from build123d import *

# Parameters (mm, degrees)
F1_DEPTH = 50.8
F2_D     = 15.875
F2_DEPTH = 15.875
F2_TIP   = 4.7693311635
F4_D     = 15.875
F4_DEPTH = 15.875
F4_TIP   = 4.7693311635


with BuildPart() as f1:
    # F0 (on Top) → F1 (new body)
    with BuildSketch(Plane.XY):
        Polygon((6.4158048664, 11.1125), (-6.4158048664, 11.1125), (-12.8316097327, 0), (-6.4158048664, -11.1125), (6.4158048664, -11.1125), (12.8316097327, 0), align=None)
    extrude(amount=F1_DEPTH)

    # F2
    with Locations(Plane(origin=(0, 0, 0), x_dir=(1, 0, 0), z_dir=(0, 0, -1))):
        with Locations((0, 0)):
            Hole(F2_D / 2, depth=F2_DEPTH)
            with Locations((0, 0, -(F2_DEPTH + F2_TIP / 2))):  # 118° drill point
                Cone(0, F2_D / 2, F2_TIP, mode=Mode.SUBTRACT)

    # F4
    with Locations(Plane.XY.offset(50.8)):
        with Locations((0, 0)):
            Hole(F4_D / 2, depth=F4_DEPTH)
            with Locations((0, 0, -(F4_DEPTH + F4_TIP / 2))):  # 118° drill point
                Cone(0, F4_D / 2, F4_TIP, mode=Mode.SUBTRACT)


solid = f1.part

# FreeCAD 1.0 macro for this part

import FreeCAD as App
import Part
import Sketcher
from FreeCAD import Vector
Q = App.Units.Quantity


def add_polygon(sketch, points):
    """Adds a closed chain of lines whose ends are joined by coincident constraints."""
    first, n = sketch.GeometryCount, len(points)
    for a, b in zip(points, points[1:] + points[:1]):
        sketch.addGeometry(Part.LineSegment(App.Vector(*a, 0), App.Vector(*b, 0)), False)
    for i in range(n):
        sketch.addConstraint(Sketcher.Constraint("Coincident", first + i, 2, first + (i + 1) % n, 1))

doc = App.newDocument("Part")
body = doc.addObject("PartDesign::Body", "Body")

sketch1 = body.newObject("Sketcher::SketchObject", "Sketch")
sketch1.AttachmentSupport = (doc.getObject("XY_Plane"), [""])
sketch1.MapMode = "FlatFace"
add_polygon(sketch1, [(6.415805, 11.1125), (-6.415805, 11.1125), (-12.83161, 0), (-6.415805, -11.1125), (6.415805, -11.1125), (12.83161, 0)])
sketch1.addConstraint(Sketcher.Constraint("Horizontal", 0))
sketch1.addConstraint(Sketcher.Constraint("Horizontal", 3))
sketch1.addConstraint(Sketcher.Constraint("Symmetric", 0, 2, 3, 2, -1, 1))
sketch1.addConstraint(Sketcher.Constraint("Symmetric", 1, 2, 4, 2, -1, 1))
sketch1.addConstraint(Sketcher.Constraint("PointOnObject", 1, 2, -1))
sketch1.addConstraint(Sketcher.Constraint("Parallel", 2, 5))
sketch1.addConstraint(Sketcher.Constraint("Vertical", 0, 2, 2, 2))
sketch1.addConstraint(Sketcher.Constraint("Angle", 1, Q("-120 deg")))
sketch1.addConstraint(Sketcher.Constraint("DistanceY", -1, 1, 0, 2, Q("0.4375 in")))
sketch1.addConstraint(Sketcher.Constraint("DistanceX", 0, 2, 0, 1, 12.83161))
pad1 = body.newObject("PartDesign::Pad", "Pad")
pad1.Profile = sketch1
pad1.Length = Q("2 in")

sketch2 = body.newObject("Sketcher::SketchObject", "Sketch001")
sketch2.AttachmentSupport = (doc.getObject("XY_Plane"), [""])
sketch2.MapMode = "FlatFace"
sketch2.addGeometry(Part.Circle(Vector(0, 0, 0), Vector(0, 0, 1), 7.9375), False)
sketch2.addConstraint(Sketcher.Constraint("Coincident", 0, 3, -1, 1))
sketch2.addConstraint(Sketcher.Constraint("Diameter", 0, Q("0.625 in")))
doc.recompute()
hole = body.newObject("PartDesign::Hole", "Hole")
hole.Profile = sketch2
hole.ThreadType = "None"
hole.Diameter = Q("0.625 in")
hole.DepthType = "Dimension"
hole.Depth = Q("0.625 in")
hole.DrillPoint = "Angled"
hole.DrillPointAngle = 118
hole.Reversed = True

sketch3 = body.newObject("Sketcher::SketchObject", "Sketch002")
sketch3.AttachmentSupport = (doc.getObject("XY_Plane"), [""])
sketch3.MapMode = "FlatFace"
sketch3.AttachmentOffset = App.Placement(Vector(0, 0, 2 * 25.4), App.Rotation())
sketch3.addGeometry(Part.Circle(Vector(0, 0, 0), Vector(0, 0, 1), 7.9375), False)
sketch3.addConstraint(Sketcher.Constraint("Coincident", 0, 3, -1, 1))
sketch3.addConstraint(Sketcher.Constraint("Diameter", 0, Q("0.625 in")))
doc.recompute()
hole2 = body.newObject("PartDesign::Hole", "Hole001")
hole2.Profile = sketch3
hole2.ThreadType = "None"
hole2.Diameter = Q("0.625 in")
hole2.DepthType = "Dimension"
hole2.Depth = Q("0.625 in")
hole2.DrillPoint = "Angled"
hole2.DrillPointAngle = 118

doc.recompute()
